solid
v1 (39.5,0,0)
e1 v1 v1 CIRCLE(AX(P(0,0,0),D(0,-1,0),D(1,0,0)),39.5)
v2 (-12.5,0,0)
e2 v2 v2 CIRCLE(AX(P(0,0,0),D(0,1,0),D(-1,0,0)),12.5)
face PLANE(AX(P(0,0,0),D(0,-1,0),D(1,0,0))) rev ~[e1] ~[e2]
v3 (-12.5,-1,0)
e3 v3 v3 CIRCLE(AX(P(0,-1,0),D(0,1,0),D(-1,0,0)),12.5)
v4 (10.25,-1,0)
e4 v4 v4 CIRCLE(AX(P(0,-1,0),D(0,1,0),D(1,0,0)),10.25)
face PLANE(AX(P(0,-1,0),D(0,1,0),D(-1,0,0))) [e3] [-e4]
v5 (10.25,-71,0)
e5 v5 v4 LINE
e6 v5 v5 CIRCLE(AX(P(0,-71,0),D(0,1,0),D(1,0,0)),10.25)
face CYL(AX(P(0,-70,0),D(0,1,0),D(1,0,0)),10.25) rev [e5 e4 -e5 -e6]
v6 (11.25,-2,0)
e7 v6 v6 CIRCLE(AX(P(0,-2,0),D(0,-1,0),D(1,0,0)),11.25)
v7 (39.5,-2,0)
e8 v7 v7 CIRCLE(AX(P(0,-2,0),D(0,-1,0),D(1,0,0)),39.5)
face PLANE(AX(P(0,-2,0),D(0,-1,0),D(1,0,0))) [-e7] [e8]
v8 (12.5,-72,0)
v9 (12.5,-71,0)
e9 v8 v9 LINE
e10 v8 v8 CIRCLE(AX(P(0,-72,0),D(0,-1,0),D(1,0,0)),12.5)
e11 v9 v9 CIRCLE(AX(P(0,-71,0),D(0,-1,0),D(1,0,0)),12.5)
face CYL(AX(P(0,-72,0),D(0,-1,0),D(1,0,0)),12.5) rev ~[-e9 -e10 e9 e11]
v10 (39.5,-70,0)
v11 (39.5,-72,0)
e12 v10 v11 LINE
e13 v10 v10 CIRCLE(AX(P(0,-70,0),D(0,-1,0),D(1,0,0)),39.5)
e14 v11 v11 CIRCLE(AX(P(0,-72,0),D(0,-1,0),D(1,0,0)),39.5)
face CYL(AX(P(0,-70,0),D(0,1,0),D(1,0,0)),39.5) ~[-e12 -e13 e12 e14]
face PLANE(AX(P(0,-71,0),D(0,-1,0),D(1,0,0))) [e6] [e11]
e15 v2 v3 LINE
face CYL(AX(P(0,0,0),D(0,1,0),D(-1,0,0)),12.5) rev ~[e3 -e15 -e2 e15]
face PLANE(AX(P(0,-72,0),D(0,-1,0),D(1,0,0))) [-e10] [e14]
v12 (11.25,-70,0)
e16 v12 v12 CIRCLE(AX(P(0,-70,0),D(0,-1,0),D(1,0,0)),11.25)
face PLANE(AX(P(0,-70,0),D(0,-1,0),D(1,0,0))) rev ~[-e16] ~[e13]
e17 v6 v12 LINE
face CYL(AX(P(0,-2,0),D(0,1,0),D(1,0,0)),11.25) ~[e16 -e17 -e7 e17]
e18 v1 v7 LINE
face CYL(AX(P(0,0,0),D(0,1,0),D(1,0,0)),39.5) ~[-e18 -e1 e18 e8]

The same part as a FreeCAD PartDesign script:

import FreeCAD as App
import Part
import Sketcher
from FreeCAD import Vector

doc = App.newDocument("Part")
params = doc.addObject("Spreadsheet::Sheet", "Params")
for row, (alias, value) in enumerate([
    ("sketch1_diameter", "79 mm"),
    ("sketch1_diameter2", "20.5 mm"),
    ("pad1_length", "2 mm"),
    ("sketch2_diameter", "22.5 mm"),
    ("sketch2_diameter2", "20.5 mm"),
    ("pad2_length", "68 mm"),
    ("sketch3_diameter", "25 mm"),
    ("pocket1_length", "1 mm"),
    ("sketch4_diameter", "79 mm"),
    ("sketch4_diameter2", "20.5 mm"),
    ("pad3_length", "2 mm"),
    ("sketch5_diameter", "25 mm"),
    ("pocket2_length", "1 mm"),
], start=1):
    params.set(f"A{row}", alias)
    params.set(f"B{row}", "=" + value)
    params.setAlias(f"B{row}", alias)

body = doc.addObject("PartDesign::Body", "Body")

# Sketch on XZ plane
sketch1 = doc.addObject("Sketcher::SketchObject", "Sketch")
body.addObject(sketch1)
sketch1.AttachmentSupport = (doc.XZ_Plane, [""])
sketch1.MapMode = "FlatFace"
sketch1.addGeometry([
    Part.Circle(Vector(0, 0, 0), Vector(0, 0, 1), 40),
    Part.Circle(Vector(0, 0, 0), Vector(0, 0, 1), 10),
], False)
sketch1.addConstraint([
    Sketcher.Constraint("Coincident", 0, 3, -1, 1),
    Sketcher.Constraint("Coincident", 1, 3, -1, 1),
    Sketcher.Constraint("Diameter", 0, 79.0),
    Sketcher.Constraint("Diameter", 1, 20.5),
])
sketch1.setExpression("Constraints[2]", "Params.sketch1_diameter")
sketch1.setExpression("Constraints[3]", "Params.sketch1_diameter2")
pad1 = doc.addObject("PartDesign::Pad", "Pad")
body.addObject(pad1)
pad1.Profile = sketch1
pad1.setExpression("Length", "Params.pad1_length")

# Sketch on XZ plane
sketch2 = doc.addObject("Sketcher::SketchObject", "Sketch001")
body.addObject(sketch2)
sketch2.AttachmentSupport = (doc.XZ_Plane, [""])
sketch2.MapMode = "FlatFace"
sketch2.AttachmentOffset = App.Placement(Vector(0, 0, 2), App.Rotation())
sketch2.addGeometry([
    Part.Circle(Vector(0, 0, 0), Vector(0, 0, 1), 11),
    Part.Circle(Vector(0, 0, 0), Vector(0, 0, 1), 10),
], False)
sketch2.addConstraint([
    Sketcher.Constraint("Coincident", 0, 3, -1, 1),
    Sketcher.Constraint("Coincident", 1, 3, -1, 1),
    Sketcher.Constraint("Diameter", 0, 22.5),
    Sketcher.Constraint("Diameter", 1, 20.5),
])
sketch2.setExpression("Constraints[2]", "Params.sketch2_diameter")
sketch2.setExpression("Constraints[3]", "Params.sketch2_diameter2")
pad2 = doc.addObject("PartDesign::Pad", "Pad001")
body.addObject(pad2)
pad2.Profile = sketch2
pad2.setExpression("Length", "Params.pad2_length")

# Sketch on XZ plane
sketch3 = doc.addObject("Sketcher::SketchObject", "Sketch002")
body.addObject(sketch3)
sketch3.AttachmentSupport = (doc.XZ_Plane, [""])
sketch3.MapMode = "FlatFace"
sketch3.addGeometry(Part.Circle(Vector(0, 0, 0), Vector(0, 0, 1), 12), False)
sketch3.addConstraint([
    Sketcher.Constraint("Coincident", 0, 3, -1, 1),
    Sketcher.Constraint("Diameter", 0, 25.0),
])
sketch3.setExpression("Constraints[1]", "Params.sketch3_diameter")
pocket1 = doc.addObject("PartDesign::Pocket", "Pocket")
body.addObject(pocket1)
pocket1.Profile = sketch3
pocket1.setExpression("Length", "Params.pocket1_length")
pocket1.Reversed = True

# Sketch on XZ plane
sketch4 = doc.addObject("Sketcher::SketchObject", "Sketch003")
body.addObject(sketch4)
sketch4.AttachmentSupport = (doc.XZ_Plane, [""])
sketch4.MapMode = "FlatFace"
sketch4.AttachmentOffset = App.Placement(Vector(0, 0, 70), App.Rotation())
sketch4.addGeometry([
    Part.Circle(Vector(0, 0, 0), Vector(0, 0, 1), 40),
    Part.Circle(Vector(0, 0, 0), Vector(0, 0, 1), 10),
], False)
sketch4.addConstraint([
    Sketcher.Constraint("Coincident", 0, 3, -1, 1),
    Sketcher.Constraint("Coincident", 1, 3, -1, 1),
    Sketcher.Constraint("Diameter", 0, 79.0),
    Sketcher.Constraint("Diameter", 1, 20.5),
])
sketch4.setExpression("Constraints[2]", "Params.sketch4_diameter")
sketch4.setExpression("Constraints[3]", "Params.sketch4_diameter2")
pad3 = doc.addObject("PartDesign::Pad", "Pad002")
body.addObject(pad3)
pad3.Profile = sketch4
pad3.setExpression("Length", "Params.pad3_length")

# Sketch on XZ plane
sketch5 = doc.addObject("Sketcher::SketchObject", "Sketch004")
body.addObject(sketch5)
sketch5.AttachmentSupport = (doc.XZ_Plane, [""])
sketch5.MapMode = "FlatFace"
sketch5.AttachmentOffset = App.Placement(Vector(0, 0, 72), App.Rotation())
sketch5.addGeometry(Part.Circle(Vector(0, 0, 0), Vector(0, 0, 1), 12), False)
sketch5.addConstraint([
    Sketcher.Constraint("Coincident", 0, 3, -1, 1),
    Sketcher.Constraint("Diameter", 0, 25.0),
])
sketch5.setExpression("Constraints[1]", "Params.sketch5_diameter")
pocket2 = doc.addObject("PartDesign::Pocket", "Pocket001")
body.addObject(pocket2)
pocket2.Profile = sketch5
pocket2.setExpression("Length", "Params.pocket2_length")

doc.recompute()
